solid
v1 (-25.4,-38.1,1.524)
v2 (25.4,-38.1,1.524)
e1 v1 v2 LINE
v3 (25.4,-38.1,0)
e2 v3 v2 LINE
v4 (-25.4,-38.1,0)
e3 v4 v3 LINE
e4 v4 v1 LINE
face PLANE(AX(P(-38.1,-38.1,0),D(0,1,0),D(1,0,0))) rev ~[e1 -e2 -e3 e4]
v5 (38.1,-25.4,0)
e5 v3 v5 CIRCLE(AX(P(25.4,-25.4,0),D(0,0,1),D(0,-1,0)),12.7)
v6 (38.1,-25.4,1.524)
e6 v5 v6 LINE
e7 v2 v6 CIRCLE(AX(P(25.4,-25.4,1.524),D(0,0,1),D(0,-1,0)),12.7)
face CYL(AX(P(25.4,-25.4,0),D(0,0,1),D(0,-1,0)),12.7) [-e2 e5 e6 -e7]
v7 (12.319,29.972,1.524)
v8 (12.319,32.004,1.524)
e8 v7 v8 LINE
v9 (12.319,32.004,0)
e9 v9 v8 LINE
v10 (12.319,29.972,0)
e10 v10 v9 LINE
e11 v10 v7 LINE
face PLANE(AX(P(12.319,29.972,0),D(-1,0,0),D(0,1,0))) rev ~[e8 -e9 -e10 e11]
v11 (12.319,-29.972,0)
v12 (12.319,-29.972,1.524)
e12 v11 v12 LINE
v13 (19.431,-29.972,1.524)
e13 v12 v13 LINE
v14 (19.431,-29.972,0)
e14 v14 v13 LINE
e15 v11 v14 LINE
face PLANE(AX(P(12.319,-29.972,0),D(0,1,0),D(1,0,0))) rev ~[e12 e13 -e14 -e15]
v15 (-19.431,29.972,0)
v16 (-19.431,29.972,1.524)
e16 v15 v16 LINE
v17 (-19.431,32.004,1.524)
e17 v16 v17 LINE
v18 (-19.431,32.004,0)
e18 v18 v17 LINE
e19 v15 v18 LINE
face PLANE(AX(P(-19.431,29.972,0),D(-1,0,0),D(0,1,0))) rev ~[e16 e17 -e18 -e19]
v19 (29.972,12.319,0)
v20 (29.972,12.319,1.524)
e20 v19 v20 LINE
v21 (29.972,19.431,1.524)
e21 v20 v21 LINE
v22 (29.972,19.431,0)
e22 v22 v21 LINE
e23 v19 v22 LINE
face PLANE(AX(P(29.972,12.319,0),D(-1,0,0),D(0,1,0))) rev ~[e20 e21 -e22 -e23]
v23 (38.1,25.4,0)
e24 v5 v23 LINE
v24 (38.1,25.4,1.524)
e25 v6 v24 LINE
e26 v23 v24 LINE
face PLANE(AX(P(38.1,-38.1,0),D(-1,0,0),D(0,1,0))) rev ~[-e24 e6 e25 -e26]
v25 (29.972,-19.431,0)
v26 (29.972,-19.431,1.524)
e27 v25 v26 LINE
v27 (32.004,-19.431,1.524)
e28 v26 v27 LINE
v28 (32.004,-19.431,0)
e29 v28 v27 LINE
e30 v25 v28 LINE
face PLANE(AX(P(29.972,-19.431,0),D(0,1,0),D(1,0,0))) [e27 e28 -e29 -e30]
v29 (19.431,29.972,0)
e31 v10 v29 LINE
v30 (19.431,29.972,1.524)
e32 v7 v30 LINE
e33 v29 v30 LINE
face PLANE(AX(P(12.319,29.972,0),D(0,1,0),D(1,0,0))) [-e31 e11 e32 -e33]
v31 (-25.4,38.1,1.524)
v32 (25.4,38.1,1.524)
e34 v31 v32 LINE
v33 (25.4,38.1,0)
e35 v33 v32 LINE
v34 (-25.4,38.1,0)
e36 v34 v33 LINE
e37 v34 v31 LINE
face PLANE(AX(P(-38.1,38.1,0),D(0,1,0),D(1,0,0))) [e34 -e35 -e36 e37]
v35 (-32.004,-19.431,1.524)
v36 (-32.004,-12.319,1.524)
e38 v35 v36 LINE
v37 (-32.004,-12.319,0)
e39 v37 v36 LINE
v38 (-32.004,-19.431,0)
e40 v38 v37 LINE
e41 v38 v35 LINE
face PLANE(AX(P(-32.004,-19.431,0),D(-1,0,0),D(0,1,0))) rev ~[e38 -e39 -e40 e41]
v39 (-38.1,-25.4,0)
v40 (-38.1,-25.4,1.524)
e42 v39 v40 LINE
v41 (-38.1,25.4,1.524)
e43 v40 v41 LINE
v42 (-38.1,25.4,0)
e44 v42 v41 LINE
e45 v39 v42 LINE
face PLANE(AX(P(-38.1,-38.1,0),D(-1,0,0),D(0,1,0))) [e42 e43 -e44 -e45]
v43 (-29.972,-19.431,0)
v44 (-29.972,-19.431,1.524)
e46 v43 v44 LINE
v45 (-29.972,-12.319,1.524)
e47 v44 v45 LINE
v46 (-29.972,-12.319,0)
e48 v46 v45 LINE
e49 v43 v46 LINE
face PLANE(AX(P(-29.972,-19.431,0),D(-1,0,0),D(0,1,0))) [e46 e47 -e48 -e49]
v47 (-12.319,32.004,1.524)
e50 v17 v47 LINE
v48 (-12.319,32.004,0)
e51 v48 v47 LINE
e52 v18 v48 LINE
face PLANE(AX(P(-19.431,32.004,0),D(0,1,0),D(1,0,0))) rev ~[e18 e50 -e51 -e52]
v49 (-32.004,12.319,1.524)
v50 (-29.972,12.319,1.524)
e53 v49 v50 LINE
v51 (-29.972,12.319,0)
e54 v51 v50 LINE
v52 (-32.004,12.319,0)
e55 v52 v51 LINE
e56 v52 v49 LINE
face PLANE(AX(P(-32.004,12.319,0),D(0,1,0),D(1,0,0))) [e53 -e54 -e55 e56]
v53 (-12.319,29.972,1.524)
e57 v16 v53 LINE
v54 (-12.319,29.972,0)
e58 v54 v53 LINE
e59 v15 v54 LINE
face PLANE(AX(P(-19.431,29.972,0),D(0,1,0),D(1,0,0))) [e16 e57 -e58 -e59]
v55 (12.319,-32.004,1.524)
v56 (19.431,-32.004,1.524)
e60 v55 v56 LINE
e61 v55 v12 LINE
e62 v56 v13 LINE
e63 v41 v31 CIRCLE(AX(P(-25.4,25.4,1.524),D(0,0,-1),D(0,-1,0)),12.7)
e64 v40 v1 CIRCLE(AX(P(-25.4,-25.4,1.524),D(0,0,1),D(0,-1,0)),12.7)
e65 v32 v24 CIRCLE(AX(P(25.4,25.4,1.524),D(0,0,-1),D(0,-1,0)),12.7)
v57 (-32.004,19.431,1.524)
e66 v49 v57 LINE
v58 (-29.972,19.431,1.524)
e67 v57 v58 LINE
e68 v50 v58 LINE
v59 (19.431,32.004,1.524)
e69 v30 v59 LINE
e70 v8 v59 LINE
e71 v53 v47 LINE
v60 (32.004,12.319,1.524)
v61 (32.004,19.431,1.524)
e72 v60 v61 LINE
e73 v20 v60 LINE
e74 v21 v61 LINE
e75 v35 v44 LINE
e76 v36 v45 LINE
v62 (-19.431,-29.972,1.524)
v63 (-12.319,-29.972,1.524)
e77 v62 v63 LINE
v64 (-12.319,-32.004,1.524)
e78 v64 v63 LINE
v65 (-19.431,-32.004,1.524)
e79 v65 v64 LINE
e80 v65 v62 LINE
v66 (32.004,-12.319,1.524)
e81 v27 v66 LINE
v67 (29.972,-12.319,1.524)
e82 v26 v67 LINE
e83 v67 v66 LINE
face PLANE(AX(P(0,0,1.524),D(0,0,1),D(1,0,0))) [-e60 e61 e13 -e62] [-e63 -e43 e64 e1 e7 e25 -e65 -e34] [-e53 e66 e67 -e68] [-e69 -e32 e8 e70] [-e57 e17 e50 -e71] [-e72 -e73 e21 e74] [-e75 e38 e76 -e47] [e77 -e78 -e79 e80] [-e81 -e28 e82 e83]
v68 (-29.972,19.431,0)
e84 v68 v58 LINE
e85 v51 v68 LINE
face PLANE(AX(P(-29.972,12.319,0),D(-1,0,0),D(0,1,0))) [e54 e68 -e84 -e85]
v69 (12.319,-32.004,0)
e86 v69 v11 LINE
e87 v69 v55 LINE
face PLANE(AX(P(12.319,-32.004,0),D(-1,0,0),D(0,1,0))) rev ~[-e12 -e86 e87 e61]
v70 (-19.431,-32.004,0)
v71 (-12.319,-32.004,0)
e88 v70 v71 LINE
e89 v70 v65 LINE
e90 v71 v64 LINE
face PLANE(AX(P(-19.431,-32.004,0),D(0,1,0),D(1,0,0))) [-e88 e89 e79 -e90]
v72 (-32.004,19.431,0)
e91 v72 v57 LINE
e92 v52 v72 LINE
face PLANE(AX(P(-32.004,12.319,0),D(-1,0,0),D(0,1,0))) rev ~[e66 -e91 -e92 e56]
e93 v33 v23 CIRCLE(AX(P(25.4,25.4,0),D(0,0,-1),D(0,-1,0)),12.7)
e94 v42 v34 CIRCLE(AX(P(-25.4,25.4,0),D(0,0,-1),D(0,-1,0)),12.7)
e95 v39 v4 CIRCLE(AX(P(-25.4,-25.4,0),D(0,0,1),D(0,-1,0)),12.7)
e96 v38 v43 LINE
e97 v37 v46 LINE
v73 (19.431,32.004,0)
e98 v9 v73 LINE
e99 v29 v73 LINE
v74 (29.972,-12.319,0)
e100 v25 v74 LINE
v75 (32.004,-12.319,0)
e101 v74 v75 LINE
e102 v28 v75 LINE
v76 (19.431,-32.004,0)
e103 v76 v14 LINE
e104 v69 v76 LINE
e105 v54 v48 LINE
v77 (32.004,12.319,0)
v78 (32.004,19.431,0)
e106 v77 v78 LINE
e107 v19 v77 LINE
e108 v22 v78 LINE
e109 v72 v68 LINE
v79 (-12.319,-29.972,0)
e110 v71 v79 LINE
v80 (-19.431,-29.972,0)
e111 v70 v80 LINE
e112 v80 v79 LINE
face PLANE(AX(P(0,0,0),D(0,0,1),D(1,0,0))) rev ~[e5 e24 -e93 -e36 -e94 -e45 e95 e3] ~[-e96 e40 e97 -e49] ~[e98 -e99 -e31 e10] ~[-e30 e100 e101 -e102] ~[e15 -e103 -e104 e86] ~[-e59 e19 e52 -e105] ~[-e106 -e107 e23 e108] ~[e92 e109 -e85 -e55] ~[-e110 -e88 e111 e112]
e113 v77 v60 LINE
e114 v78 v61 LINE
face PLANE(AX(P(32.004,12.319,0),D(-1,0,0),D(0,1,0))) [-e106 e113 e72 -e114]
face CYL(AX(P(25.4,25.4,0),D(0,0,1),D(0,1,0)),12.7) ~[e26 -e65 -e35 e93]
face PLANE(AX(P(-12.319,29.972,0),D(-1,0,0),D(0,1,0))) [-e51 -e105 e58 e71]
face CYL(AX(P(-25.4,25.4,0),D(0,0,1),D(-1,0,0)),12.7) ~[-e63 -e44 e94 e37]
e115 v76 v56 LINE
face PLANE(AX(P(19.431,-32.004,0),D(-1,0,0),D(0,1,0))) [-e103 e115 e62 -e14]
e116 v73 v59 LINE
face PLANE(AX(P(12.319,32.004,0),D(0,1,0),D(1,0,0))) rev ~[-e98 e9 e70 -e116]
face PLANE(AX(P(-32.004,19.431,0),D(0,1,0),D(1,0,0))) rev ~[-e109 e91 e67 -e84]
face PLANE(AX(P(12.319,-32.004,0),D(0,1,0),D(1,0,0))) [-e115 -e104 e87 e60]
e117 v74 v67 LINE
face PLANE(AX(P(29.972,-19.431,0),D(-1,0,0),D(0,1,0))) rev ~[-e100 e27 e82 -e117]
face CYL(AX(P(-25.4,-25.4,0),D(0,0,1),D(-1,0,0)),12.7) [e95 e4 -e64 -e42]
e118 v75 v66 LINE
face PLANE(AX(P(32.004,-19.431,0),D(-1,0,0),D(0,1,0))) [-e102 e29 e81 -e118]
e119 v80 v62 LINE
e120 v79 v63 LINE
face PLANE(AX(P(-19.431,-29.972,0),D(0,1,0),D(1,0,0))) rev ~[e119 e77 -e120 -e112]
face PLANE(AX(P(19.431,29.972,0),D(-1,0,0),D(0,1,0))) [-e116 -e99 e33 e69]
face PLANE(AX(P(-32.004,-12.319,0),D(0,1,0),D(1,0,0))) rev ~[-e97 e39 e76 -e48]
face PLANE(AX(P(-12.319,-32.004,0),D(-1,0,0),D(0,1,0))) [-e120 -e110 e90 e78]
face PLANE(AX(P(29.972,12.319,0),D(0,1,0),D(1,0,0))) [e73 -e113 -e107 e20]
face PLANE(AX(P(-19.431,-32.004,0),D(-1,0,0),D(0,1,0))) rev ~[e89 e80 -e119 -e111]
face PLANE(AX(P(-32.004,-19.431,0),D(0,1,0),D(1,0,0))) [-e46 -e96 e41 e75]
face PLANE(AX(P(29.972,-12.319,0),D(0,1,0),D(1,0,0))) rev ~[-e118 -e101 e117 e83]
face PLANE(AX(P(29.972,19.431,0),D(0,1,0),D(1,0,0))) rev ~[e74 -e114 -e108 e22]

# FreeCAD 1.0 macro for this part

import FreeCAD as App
import Part
import Sketcher
from FreeCAD import Vector
Q = App.Units.Quantity


def edges_at(feature, points):
    """Names of the edges that pass closest to the given points."""
    edges = feature.Shape.Edges
    near = lambda p: min(range(len(edges)), key=lambda i: edges[i].distToShape(Part.Vertex(*p))[0])
    return sorted({f"Edge{near(p) + 1}" for p in points})

doc = App.newDocument("Part")
body = doc.addObject("PartDesign::Body", "Body")

sketch1 = body.newObject("Sketcher::SketchObject", "Sketch")
sketch1.AttachmentSupport = (doc.getObject("XY_Plane"), [""])
sketch1.MapMode = "FlatFace"
sketch1.addGeometry([
    Part.LineSegment(Vector(-38.1, 38.1, 0), Vector(-38.1, -38.1, 0)),
    Part.LineSegment(Vector(-38.1, -38.1, 0), Vector(38.1, -38.1, 0)),
    Part.LineSegment(Vector(38.1, -38.1, 0), Vector(38.1, 38.1, 0)),
    Part.LineSegment(Vector(38.1, 38.1, 0), Vector(-38.1, 38.1, 0)),
    Part.LineSegment(Vector(-12.3, -32, 0), Vector(-19.4, -32, 0)),
    Part.LineSegment(Vector(-19.4, -32, 0), Vector(-19.4, -30, 0)),
    Part.LineSegment(Vector(-19.4, -30, 0), Vector(-12.3, -30, 0)),
    Part.LineSegment(Vector(-12.3, -30, 0), Vector(-12.3, -32, 0)),
    Part.LineSegment(Vector(-30, -19.4, 0), Vector(-32, -19.4, 0)),
    Part.LineSegment(Vector(-32, -19.4, 0), Vector(-32, -12.3, 0)),
    Part.LineSegment(Vector(-32, -12.3, 0), Vector(-30, -12.3, 0)),
    Part.LineSegment(Vector(-30, -12.3, 0), Vector(-30, -19.4, 0)),
    Part.LineSegment(Vector(19.4, -32, 0), Vector(12.3, -32, 0)),
    Part.LineSegment(Vector(12.3, -32, 0), Vector(12.3, -30, 0)),
    Part.LineSegment(Vector(12.3, -30, 0), Vector(19.4, -30, 0)),
    Part.LineSegment(Vector(19.4, -30, 0), Vector(19.4, -32, 0)),
    Part.LineSegment(Vector(32, -19.4, 0), Vector(30, -19.4, 0)),
    Part.LineSegment(Vector(30, -19.4, 0), Vector(30, -12.3, 0)),
    Part.LineSegment(Vector(30, -12.3, 0), Vector(32, -12.3, 0)),
    Part.LineSegment(Vector(32, -12.3, 0), Vector(32, -19.4, 0)),
    Part.LineSegment(Vector(-30, 12.3, 0), Vector(-32, 12.3, 0)),
    Part.LineSegment(Vector(-32, 12.3, 0), Vector(-32, 19.4, 0)),
    Part.LineSegment(Vector(-32, 19.4, 0), Vector(-30, 19.4, 0)),
    Part.LineSegment(Vector(-30, 19.4, 0), Vector(-30, 12.3, 0)),
    Part.LineSegment(Vector(-12.3, 30, 0), Vector(-19.4, 30, 0)),
    Part.LineSegment(Vector(-19.4, 30, 0), Vector(-19.4, 32, 0)),
    Part.LineSegment(Vector(-19.4, 32, 0), Vector(-12.3, 32, 0)),
    Part.LineSegment(Vector(-12.3, 32, 0), Vector(-12.3, 30, 0)),
    Part.LineSegment(Vector(32, 12.3, 0), Vector(30, 12.3, 0)),
    Part.LineSegment(Vector(30, 12.3, 0), Vector(30, 19.4, 0)),
    Part.LineSegment(Vector(30, 19.4, 0), Vector(32, 19.4, 0)),
    Part.LineSegment(Vector(32, 19.4, 0), Vector(32, 12.3, 0)),
    Part.LineSegment(Vector(19.4, 30, 0), Vector(12.3, 30, 0)),
    Part.LineSegment(Vector(12.3, 30, 0), Vector(12.3, 32, 0)),
    Part.LineSegment(Vector(12.3, 32, 0), Vector(19.4, 32, 0)),
    Part.LineSegment(Vector(19.4, 32, 0), Vector(19.4, 30, 0)),
], False)
sketch1.addConstraint([
    Sketcher.Constraint("Coincident", 0, 2, 1, 1),
    Sketcher.Constraint("Coincident", 1, 2, 2, 1),
    Sketcher.Constraint("Coincident", 2, 2, 3, 1),
    Sketcher.Constraint("Coincident", 3, 2, 0, 1),
    Sketcher.Constraint("Coincident", 4, 2, 5, 1),
    Sketcher.Constraint("Coincident", 5, 2, 6, 1),
    Sketcher.Constraint("Coincident", 6, 2, 7, 1),
    Sketcher.Constraint("Coincident", 7, 2, 4, 1),
    Sketcher.Constraint("Coincident", 8, 2, 9, 1),
    Sketcher.Constraint("Coincident", 9, 2, 10, 1),
    Sketcher.Constraint("Coincident", 10, 2, 11, 1),
    Sketcher.Constraint("Coincident", 11, 2, 8, 1),
    Sketcher.Constraint("Coincident", 12, 2, 13, 1),
    Sketcher.Constraint("Coincident", 13, 2, 14, 1),
    Sketcher.Constraint("Coincident", 14, 2, 15, 1),
    Sketcher.Constraint("Coincident", 15, 2, 12, 1),
    Sketcher.Constraint("Coincident", 16, 2, 17, 1),
    Sketcher.Constraint("Coincident", 17, 2, 18, 1),
    Sketcher.Constraint("Coincident", 18, 2, 19, 1),
    Sketcher.Constraint("Coincident", 19, 2, 16, 1),
    Sketcher.Constraint("Coincident", 20, 2, 21, 1),
    Sketcher.Constraint("Coincident", 21, 2, 22, 1),
    Sketcher.Constraint("Coincident", 22, 2, 23, 1),
    Sketcher.Constraint("Coincident", 23, 2, 20, 1),
    Sketcher.Constraint("Coincident", 24, 2, 25, 1),
    Sketcher.Constraint("Coincident", 25, 2, 26, 1),
    Sketcher.Constraint("Coincident", 26, 2, 27, 1),
    Sketcher.Constraint("Coincident", 27, 2, 24, 1),
    Sketcher.Constraint("Coincident", 28, 2, 29, 1),
    Sketcher.Constraint("Coincident", 29, 2, 30, 1),
    Sketcher.Constraint("Coincident", 30, 2, 31, 1),
    Sketcher.Constraint("Coincident", 31, 2, 28, 1),
    Sketcher.Constraint("Coincident", 32, 2, 33, 1),
    Sketcher.Constraint("Coincident", 33, 2, 34, 1),
    Sketcher.Constraint("Coincident", 34, 2, 35, 1),
    Sketcher.Constraint("Coincident", 35, 2, 32, 1),
    Sketcher.Constraint("Vertical", 0),
    Sketcher.Constraint("Horizontal", 1),
    Sketcher.Constraint("Vertical", 2),
    Sketcher.Constraint("Horizontal", 3),
    Sketcher.Constraint("Horizontal", 4),
    Sketcher.Constraint("Vertical", 5),
    Sketcher.Constraint("Horizontal", 6),
    Sketcher.Constraint("Vertical", 7),
    Sketcher.Constraint("Horizontal", 8),
    Sketcher.Constraint("Vertical", 9),
    Sketcher.Constraint("Horizontal", 10),
    Sketcher.Constraint("Vertical", 11),
    Sketcher.Constraint("Horizontal", 12),
    Sketcher.Constraint("Vertical", 13),
    Sketcher.Constraint("Horizontal", 14),
    Sketcher.Constraint("Vertical", 15),
    Sketcher.Constraint("Horizontal", 16),
    Sketcher.Constraint("Vertical", 17),
    Sketcher.Constraint("Horizontal", 18),
    Sketcher.Constraint("Vertical", 19),
    Sketcher.Constraint("Horizontal", 20),
    Sketcher.Constraint("Vertical", 21),
    Sketcher.Constraint("Horizontal", 22),
    Sketcher.Constraint("Vertical", 23),
    Sketcher.Constraint("Horizontal", 24),
    Sketcher.Constraint("Vertical", 25),
    Sketcher.Constraint("Horizontal", 26),
    Sketcher.Constraint("Vertical", 27),
    Sketcher.Constraint("Horizontal", 28),
    Sketcher.Constraint("Vertical", 29),
    Sketcher.Constraint("Horizontal", 30),
    Sketcher.Constraint("Vertical", 31),
    Sketcher.Constraint("Horizontal", 32),
    Sketcher.Constraint("Vertical", 33),
    Sketcher.Constraint("Horizontal", 34),
    Sketcher.Constraint("Vertical", 35),
    Sketcher.Constraint("Symmetric", 0, 2, 2, 2, -1, 1),
    Sketcher.Constraint("Symmetric", 18, 2, 20, 2, -1, 1),
    Sketcher.Constraint("Symmetric", 16, 2, 22, 2, -1, 1),
    Sketcher.Constraint("Symmetric", 14, 2, 24, 2, -1, 1),
    Sketcher.Constraint("Symmetric", 12, 2, 26, 2, -1, 1),
    Sketcher.Constraint("Symmetric", 10, 2, 28, 2, -1, 1),
    Sketcher.Constraint("Symmetric", 8, 2, 30, 2, -1, 1),
    Sketcher.Constraint("Symmetric", 6, 2, 32, 2, -1, 1),
    Sketcher.Constraint("Symmetric", 4, 2, 34, 2, -1, 1),
    Sketcher.Constraint("Symmetric", 7, 2, 12, 2, -2),
    Sketcher.Constraint("Symmetric", 5, 2, 14, 2, -2),
    Sketcher.Constraint("Symmetric", 11, 2, 16, 2, -2),
    Sketcher.Constraint("Symmetric", 9, 2, 18, 2, -2),
    Sketcher.Constraint("Equal", 3, 0),
    Sketcher.Constraint("Equal", 30, 5),
    Sketcher.Constraint("Equal", 34, 9),
    Sketcher.Constraint("DistanceX", 1, 1, 1, 2, Q("3 in")),
    Sketcher.Constraint("DistanceX", 4, 2, 4, 1, Q("0.28 in")),
    Sketcher.Constraint("DistanceX", 8, 2, 8, 1, Q("0.08 in")),
    Sketcher.Constraint("DistanceY", 4, 2, -1, 1, Q("1.26 in")),
    Sketcher.Constraint("DistanceX", 8, 2, -1, 1, Q("1.26 in")),
    Sketcher.Constraint("DistanceX", 7, 2, 12, 2, Q("0.97 in")),
    Sketcher.Constraint("DistanceY", 9, 2, 20, 2, Q("0.97 in")),
])
pad1 = body.newObject("PartDesign::Pad", "Pad")
pad1.Profile = sketch1
pad1.Length = Q("0.06 in")
doc.recompute()

fillet = body.newObject("PartDesign::Fillet", "Fillet")
fillet.Base = (pad1, edges_at(pad1, [
    (-38.1, 38.1, 0.762),
    (38.1, 38.1, 0.762),
    (38.1, -38.1, 0.762),
    (-38.1, -38.1, 0.762),
]))
fillet.Radius = Q("0.5 in")

doc.recompute()
